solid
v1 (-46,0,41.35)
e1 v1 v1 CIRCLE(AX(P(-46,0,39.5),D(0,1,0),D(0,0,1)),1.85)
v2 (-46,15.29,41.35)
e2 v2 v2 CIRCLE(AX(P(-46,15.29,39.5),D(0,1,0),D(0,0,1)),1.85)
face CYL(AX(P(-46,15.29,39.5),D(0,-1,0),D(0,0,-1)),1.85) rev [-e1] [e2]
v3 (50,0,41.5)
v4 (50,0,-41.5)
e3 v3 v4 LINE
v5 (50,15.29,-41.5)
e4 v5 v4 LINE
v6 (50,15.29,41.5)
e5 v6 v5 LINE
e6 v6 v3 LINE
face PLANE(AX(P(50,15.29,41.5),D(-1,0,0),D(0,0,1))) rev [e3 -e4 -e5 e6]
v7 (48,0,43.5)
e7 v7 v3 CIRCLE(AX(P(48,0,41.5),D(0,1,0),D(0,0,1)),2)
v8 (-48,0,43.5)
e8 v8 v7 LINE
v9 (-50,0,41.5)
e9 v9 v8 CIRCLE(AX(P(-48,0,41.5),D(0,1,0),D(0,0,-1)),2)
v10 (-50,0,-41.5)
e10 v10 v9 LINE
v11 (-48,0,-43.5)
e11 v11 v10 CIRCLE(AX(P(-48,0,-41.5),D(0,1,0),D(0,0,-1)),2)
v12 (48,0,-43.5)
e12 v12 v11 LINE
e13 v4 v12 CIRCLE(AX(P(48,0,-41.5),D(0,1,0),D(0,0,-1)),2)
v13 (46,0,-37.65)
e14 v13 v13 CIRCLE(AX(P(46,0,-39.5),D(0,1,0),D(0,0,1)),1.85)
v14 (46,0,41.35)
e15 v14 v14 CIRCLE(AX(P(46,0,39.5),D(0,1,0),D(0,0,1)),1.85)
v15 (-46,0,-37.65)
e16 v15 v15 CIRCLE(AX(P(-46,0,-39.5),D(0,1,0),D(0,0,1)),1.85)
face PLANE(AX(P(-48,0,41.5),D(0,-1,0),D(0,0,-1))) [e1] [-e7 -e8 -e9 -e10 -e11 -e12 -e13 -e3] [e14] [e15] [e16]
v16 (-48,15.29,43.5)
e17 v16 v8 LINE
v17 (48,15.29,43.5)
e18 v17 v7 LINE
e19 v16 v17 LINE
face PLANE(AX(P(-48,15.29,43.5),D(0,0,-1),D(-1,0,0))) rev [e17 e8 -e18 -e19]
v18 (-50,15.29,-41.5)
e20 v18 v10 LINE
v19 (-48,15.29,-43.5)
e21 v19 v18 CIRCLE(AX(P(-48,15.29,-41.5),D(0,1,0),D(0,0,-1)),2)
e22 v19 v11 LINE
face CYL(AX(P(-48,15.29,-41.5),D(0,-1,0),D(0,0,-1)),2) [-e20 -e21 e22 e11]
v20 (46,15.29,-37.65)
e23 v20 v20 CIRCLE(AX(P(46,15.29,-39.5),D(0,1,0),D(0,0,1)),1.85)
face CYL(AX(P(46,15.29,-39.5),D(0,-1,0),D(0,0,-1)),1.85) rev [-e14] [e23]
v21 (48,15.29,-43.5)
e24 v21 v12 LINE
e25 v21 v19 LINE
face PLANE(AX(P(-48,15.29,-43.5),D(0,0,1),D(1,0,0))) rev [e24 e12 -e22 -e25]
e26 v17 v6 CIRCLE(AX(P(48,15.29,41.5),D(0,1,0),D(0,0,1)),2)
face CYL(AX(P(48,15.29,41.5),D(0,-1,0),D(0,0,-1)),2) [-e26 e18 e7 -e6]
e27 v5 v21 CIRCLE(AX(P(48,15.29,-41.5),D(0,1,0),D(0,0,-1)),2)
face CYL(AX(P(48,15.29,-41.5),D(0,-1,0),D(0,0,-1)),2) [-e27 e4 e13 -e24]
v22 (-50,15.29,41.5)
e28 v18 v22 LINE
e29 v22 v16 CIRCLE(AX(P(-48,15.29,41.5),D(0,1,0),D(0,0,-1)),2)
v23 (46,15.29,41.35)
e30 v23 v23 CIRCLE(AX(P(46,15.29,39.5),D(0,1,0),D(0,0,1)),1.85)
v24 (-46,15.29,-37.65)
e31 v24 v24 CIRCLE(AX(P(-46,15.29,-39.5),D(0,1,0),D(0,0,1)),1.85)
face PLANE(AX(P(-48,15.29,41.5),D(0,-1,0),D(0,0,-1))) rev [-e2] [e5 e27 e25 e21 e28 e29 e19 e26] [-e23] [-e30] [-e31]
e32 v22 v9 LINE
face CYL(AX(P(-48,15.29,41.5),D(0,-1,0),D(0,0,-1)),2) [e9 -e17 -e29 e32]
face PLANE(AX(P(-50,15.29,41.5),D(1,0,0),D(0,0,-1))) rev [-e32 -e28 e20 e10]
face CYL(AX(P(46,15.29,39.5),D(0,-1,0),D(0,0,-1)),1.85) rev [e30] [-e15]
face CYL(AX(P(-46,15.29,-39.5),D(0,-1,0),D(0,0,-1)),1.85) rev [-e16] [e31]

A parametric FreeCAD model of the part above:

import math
import FreeCAD as App
import Part
import Sketcher
from FreeCAD import Vector
Q = App.Units.Quantity

doc = App.newDocument("Part")
params = doc.addObject("Spreadsheet::Sheet", "Params")
for row, (alias, value) in enumerate([
    ("sketch1_radius", "2 mm"),
    ("sketch1_diameter", "3.7 mm"),
    ("sketch1_width", "96 mm"),
    ("sketch1_height", "83 mm"),
    ("pad1_length", "15.29 mm"),
], start=1):
    params.set(f"A{row}", alias)
    params.set(f"B{row}", "=" + value)
    params.setAlias(f"B{row}", alias)

body = doc.addObject("PartDesign::Body", "Body")

# Sketch on XZ plane
sketch1 = body.newObject("Sketcher::SketchObject", "Sketch")
sketch1.AttachmentSupport = (doc.getObject("XZ_Plane"), [""])
sketch1.MapMode = "FlatFace"
sketch1.addGeometry([
    Part.LineSegment(Vector(-48, 43.5, 0), Vector(48, 43.5, 0)),  # 0
    Part.ArcOfCircle(Part.Circle(Vector(48, 41.5, 0), Vector(0, 0, 1), 2), math.radians(0), math.radians(90)),  # 1
    Part.LineSegment(Vector(50, 41.5, 0), Vector(50, -41.5, 0)),  # 2
    Part.ArcOfCircle(Part.Circle(Vector(48, -41.5, 0), Vector(0, 0, 1), 2), math.radians(-90), math.radians(0)),  # 3
    Part.LineSegment(Vector(48, -43.5, 0), Vector(-48, -43.5, 0)),  # 4
    Part.ArcOfCircle(Part.Circle(Vector(-48, -41.5, 0), Vector(0, 0, 1), 2), math.radians(-180), math.radians(-90)),  # 5
    Part.LineSegment(Vector(-50, -41.5, 0), Vector(-50, 41.5, 0)),  # 6
    Part.ArcOfCircle(Part.Circle(Vector(-48, 41.5, 0), Vector(0, 0, 1), 2), math.radians(90), math.radians(180)),  # 7
    Part.Circle(Vector(-46, 39.5, 0), Vector(0, 0, 1), 1.9),  # 8
    Part.Circle(Vector(46, 39.5, 0), Vector(0, 0, 1), 1.9),  # 9
    Part.Circle(Vector(-46, -39.5, 0), Vector(0, 0, 1), 1.9),  # 10
    Part.Circle(Vector(46, -39.5, 0), Vector(0, 0, 1), 1.9),  # 11
], False)
sketch1.addConstraint([
    Sketcher.Constraint("Tangent", 0, 2, 1, 2),
    Sketcher.Constraint("Tangent", 1, 1, 2, 1),
    Sketcher.Constraint("Tangent", 2, 2, 3, 2),
    Sketcher.Constraint("Tangent", 3, 1, 4, 1),
    Sketcher.Constraint("Tangent", 4, 2, 5, 2),
    Sketcher.Constraint("Tangent", 5, 1, 6, 1),
    Sketcher.Constraint("Tangent", 6, 2, 7, 2),
    Sketcher.Constraint("Tangent", 7, 1, 0, 1),
    Sketcher.Constraint("Horizontal", 0),
    Sketcher.Constraint("Vertical", 2),
    Sketcher.Constraint("Horizontal", 4),
    Sketcher.Constraint("Vertical", 6),
    Sketcher.Constraint("Equal", 1, 3),
    Sketcher.Constraint("Equal", 3, 5),
    Sketcher.Constraint("Equal", 5, 7),
    Sketcher.Constraint("Equal", 8, 9),
    Sketcher.Constraint("Equal", 9, 10),
    Sketcher.Constraint("Equal", 10, 11),
    Sketcher.Constraint("Symmetric", 1, 3, 5, 3, -1, 1),
    Sketcher.Constraint("Symmetric", 9, 3, 10, 3, -1, 1),
    Sketcher.Constraint("Symmetric", 8, 3, 11, 3, -1, 1),
    Sketcher.Constraint("Symmetric", 8, 3, 9, 3, -2),
    Sketcher.Constraint("Radius", 1, Q("2 mm")),
    Sketcher.Constraint("Diameter", 8, Q("3.7 mm")),
    Sketcher.Constraint("DistanceX", 0, 1, 0, 2, Q("96 mm")),
    Sketcher.Constraint("DistanceY", 2, 2, 2, 1, Q("83 mm")),
    Sketcher.Constraint("DistanceX", 8, 3, -1, 1, Q("46 mm")),
    Sketcher.Constraint("DistanceY", 8, 3, 7, 3, Q("2 mm")),
])
sketch1.setExpression("Constraints[22]", "Params.sketch1_radius")
sketch1.setExpression("Constraints[23]", "Params.sketch1_diameter")
sketch1.setExpression("Constraints[24]", "Params.sketch1_width")
sketch1.setExpression("Constraints[25]", "Params.sketch1_height")
pad1 = body.newObject("PartDesign::Pad", "Pad")
pad1.Profile = sketch1
pad1.setExpression("Length", "Params.pad1_length")
pad1.Reversed = True

doc.recompute()
